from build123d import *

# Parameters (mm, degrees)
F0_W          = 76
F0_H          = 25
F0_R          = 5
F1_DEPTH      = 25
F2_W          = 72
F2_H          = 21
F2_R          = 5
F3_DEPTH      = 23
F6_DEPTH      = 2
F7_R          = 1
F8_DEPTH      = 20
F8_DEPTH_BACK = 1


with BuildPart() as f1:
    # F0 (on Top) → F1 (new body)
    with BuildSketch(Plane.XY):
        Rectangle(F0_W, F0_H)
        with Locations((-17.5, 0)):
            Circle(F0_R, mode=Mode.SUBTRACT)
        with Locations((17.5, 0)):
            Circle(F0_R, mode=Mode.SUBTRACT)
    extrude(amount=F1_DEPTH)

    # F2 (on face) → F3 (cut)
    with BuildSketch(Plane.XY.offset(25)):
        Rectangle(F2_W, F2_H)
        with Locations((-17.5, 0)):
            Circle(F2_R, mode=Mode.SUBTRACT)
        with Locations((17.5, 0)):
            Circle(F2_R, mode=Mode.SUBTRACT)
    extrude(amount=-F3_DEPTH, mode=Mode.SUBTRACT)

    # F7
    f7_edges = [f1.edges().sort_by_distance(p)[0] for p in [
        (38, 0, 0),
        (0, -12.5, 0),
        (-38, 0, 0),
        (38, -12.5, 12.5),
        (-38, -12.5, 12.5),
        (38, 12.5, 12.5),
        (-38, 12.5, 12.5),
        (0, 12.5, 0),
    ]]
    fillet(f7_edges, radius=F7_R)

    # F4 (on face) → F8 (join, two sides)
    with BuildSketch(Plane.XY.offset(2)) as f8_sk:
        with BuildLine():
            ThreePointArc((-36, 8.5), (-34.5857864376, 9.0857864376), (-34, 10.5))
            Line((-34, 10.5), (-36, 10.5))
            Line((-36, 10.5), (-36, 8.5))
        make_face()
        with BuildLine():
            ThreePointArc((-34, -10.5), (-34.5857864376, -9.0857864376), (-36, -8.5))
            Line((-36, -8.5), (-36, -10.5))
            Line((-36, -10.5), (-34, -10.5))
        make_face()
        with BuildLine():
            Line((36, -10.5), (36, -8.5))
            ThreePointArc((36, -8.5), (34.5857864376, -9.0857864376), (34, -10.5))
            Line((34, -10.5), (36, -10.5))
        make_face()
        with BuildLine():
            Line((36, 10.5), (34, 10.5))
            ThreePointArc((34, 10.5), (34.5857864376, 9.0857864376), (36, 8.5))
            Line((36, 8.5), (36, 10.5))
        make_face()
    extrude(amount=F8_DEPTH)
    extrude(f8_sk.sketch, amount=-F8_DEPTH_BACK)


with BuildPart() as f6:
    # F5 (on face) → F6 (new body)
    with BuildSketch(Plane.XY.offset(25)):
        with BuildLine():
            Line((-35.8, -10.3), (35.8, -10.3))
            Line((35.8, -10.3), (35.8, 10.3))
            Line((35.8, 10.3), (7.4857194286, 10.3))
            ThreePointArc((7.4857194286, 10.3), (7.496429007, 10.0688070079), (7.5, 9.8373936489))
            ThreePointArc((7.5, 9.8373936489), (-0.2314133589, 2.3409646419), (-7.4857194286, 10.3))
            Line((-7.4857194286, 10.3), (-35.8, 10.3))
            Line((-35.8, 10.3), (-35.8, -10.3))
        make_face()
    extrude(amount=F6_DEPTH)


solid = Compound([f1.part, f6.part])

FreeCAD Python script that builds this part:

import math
import FreeCAD as App
import Part
import Sketcher

V = App.Vector


def edges_at(feature, points):
    """Names of the edges that pass closest to the given points."""
    edges = feature.Shape.Edges
    near = lambda p: min(range(len(edges)), key=lambda i: edges[i].distToShape(Part.Vertex(*p))[0])
    return sorted({f"Edge{near(p) + 1}" for p in points})

doc = App.newDocument("Part")
body = doc.addObject("PartDesign::Body", "Body")

sketch1 = body.newObject("Sketcher::SketchObject", "Sketch")
sketch1.AttachmentSupport = (doc.getObject("XY_Plane"), [""])
sketch1.MapMode = "FlatFace"
sketch1.addGeometry(Part.LineSegment(V(-38, 12, 0), V(-38, -12, 0)), False)
sketch1.addGeometry(Part.LineSegment(V(-38, -12, 0), V(38, -12, 0)), False)
sketch1.addGeometry(Part.LineSegment(V(38, -12, 0), V(38, 12, 0)), False)
sketch1.addGeometry(Part.LineSegment(V(38, 12, 0), V(-38, 12, 0)), False)
sketch1.addGeometry(Part.Circle(V(-18, 0, 0), V(0, 0, 1), 5), False)
sketch1.addGeometry(Part.Circle(V(18, 0, 0), V(0, 0, 1), 5), False)
sketch1.addConstraint(Sketcher.Constraint("Coincident", 0, 2, 1, 1))
sketch1.addConstraint(Sketcher.Constraint("Coincident", 1, 2, 2, 1))
sketch1.addConstraint(Sketcher.Constraint("Coincident", 2, 2, 3, 1))
sketch1.addConstraint(Sketcher.Constraint("Coincident", 3, 2, 0, 1))
sketch1.addConstraint(Sketcher.Constraint("Vertical", 0))
sketch1.addConstraint(Sketcher.Constraint("Horizontal", 1))
sketch1.addConstraint(Sketcher.Constraint("Vertical", 2))
sketch1.addConstraint(Sketcher.Constraint("Horizontal", 3))
sketch1.addConstraint(Sketcher.Constraint("Equal", 4, 5))
sketch1.addConstraint(Sketcher.Constraint("Symmetric", 4, 3, 5, 3, -1, 1))
sketch1.addConstraint(Sketcher.Constraint("Symmetric", 0, 2, 2, 2, -1, 1))
sketch1.addConstraint(Sketcher.Constraint("PointOnObject", 4, 3, -1))
sketch1.addConstraint(Sketcher.Constraint("Diameter", 4, 10.0))
sketch1.addConstraint(Sketcher.Constraint("DistanceX", 1, 1, 1, 2, 76.0))
sketch1.addConstraint(Sketcher.Constraint("DistanceY", 0, 2, 0, 1, 25.0))
sketch1.addConstraint(Sketcher.Constraint("DistanceX", 4, 3, 5, 3, 35.0))
pad1 = body.newObject("PartDesign::Pad", "Pad")
pad1.Profile = sketch1
pad1.Length = 25

sketch2 = body.newObject("Sketcher::SketchObject", "Sketch001")
sketch2.AttachmentSupport = (doc.getObject("XY_Plane"), [""])
sketch2.MapMode = "FlatFace"
sketch2.AttachmentOffset = App.Placement(V(0, 0, 25), App.Rotation())
sketch2.addGeometry(Part.LineSegment(V(-36, 10, 0), V(-36, -10, 0)), False)
sketch2.addGeometry(Part.LineSegment(V(-36, -10, 0), V(36, -10, 0)), False)
sketch2.addGeometry(Part.LineSegment(V(36, -10, 0), V(36, 10, 0)), False)
sketch2.addGeometry(Part.LineSegment(V(36, 10, 0), V(-36, 10, 0)), False)
sketch2.addGeometry(Part.Circle(V(-18, 0, 0), V(0, 0, 1), 5), False)
sketch2.addGeometry(Part.Circle(V(18, 0, 0), V(0, 0, 1), 5), False)
sketch2.addConstraint(Sketcher.Constraint("Coincident", 0, 2, 1, 1))
sketch2.addConstraint(Sketcher.Constraint("Coincident", 1, 2, 2, 1))
sketch2.addConstraint(Sketcher.Constraint("Coincident", 2, 2, 3, 1))
sketch2.addConstraint(Sketcher.Constraint("Coincident", 3, 2, 0, 1))
sketch2.addConstraint(Sketcher.Constraint("Vertical", 0))
sketch2.addConstraint(Sketcher.Constraint("Horizontal", 1))
sketch2.addConstraint(Sketcher.Constraint("Vertical", 2))
sketch2.addConstraint(Sketcher.Constraint("Horizontal", 3))
sketch2.addConstraint(Sketcher.Constraint("Equal", 4, 5))
sketch2.addConstraint(Sketcher.Constraint("Symmetric", 4, 3, 5, 3, -1, 1))
sketch2.addConstraint(Sketcher.Constraint("Symmetric", 0, 2, 2, 2, -1, 1))
sketch2.addConstraint(Sketcher.Constraint("PointOnObject", 4, 3, -1))
sketch2.addConstraint(Sketcher.Constraint("Diameter", 4, 10.0))
sketch2.addConstraint(Sketcher.Constraint("DistanceX", 1, 1, 1, 2, 72.0))
sketch2.addConstraint(Sketcher.Constraint("DistanceY", 0, 2, 0, 1, 21.0))
sketch2.addConstraint(Sketcher.Constraint("DistanceX", 4, 3, 5, 3, 35.0))
pocket1 = body.newObject("PartDesign::Pocket", "Pocket")
pocket1.Profile = sketch2
pocket1.Length = 23
doc.recompute()

fillet = body.newObject("PartDesign::Fillet", "Fillet")
fillet.Base = (pocket1, edges_at(pocket1, [
    (38, 0, 0),
    (0, -12.5, 0),
    (-38, 0, 0),
    (38, -12.5, 12.5),
    (-38, -12.5, 12.5),
    (38, 12.5, 12.5),
    (-38, 12.5, 12.5),
    (0, 12.5, 0),
]))
fillet.Radius = 1

sketch3 = body.newObject("Sketcher::SketchObject", "Sketch002")
sketch3.AttachmentSupport = (doc.getObject("XY_Plane"), [""])
sketch3.MapMode = "FlatFace"
sketch3.AttachmentOffset = App.Placement(V(0, 0, 2), App.Rotation())
sketch3.addGeometry(Part.ArcOfCircle(Part.Circle(V(-36, 10.5, 0), V(0, 0, 1), 2), math.radians(-90), math.radians(0)), False)
sketch3.addGeometry(Part.LineSegment(V(-34, 10.5, 0), V(-36, 10.5, 0)), False)
sketch3.addGeometry(Part.LineSegment(V(-36, 10.5, 0), V(-36, 8.5, 0)), False)
sketch3.addGeometry(Part.ArcOfCircle(Part.Circle(V(-36, -10.5, 0), V(0, 0, 1), 2), math.radians(0), math.radians(90)), False)
sketch3.addGeometry(Part.LineSegment(V(-36, -8.5, 0), V(-36, -10.5, 0)), False)
sketch3.addGeometry(Part.LineSegment(V(-36, -10.5, 0), V(-34, -10.5, 0)), False)
sketch3.addGeometry(Part.LineSegment(V(36, -10.5, 0), V(36, -8.5, 0)), False)
sketch3.addGeometry(Part.ArcOfCircle(Part.Circle(V(36, -10.5, 0), V(0, 0, 1), 2), math.radians(90), math.radians(180)), False)
sketch3.addGeometry(Part.LineSegment(V(34, -10.5, 0), V(36, -10.5, 0)), False)
sketch3.addGeometry(Part.LineSegment(V(36, 10.5, 0), V(34, 10.5, 0)), False)
sketch3.addGeometry(Part.ArcOfCircle(Part.Circle(V(36, 10.5, 0), V(0, 0, 1), 2), math.radians(180), math.radians(270)), False)
sketch3.addGeometry(Part.LineSegment(V(36, 8.5, 0), V(36, 10.5, 0)), False)
sketch3.addConstraint(Sketcher.Constraint("Coincident", 0, 2, 1, 1))
sketch3.addConstraint(Sketcher.Constraint("Coincident", 1, 2, 2, 1))
sketch3.addConstraint(Sketcher.Constraint("Coincident", 2, 2, 0, 1))
sketch3.addConstraint(Sketcher.Constraint("Coincident", 3, 2, 4, 1))
sketch3.addConstraint(Sketcher.Constraint("Coincident", 4, 2, 5, 1))
sketch3.addConstraint(Sketcher.Constraint("Coincident", 5, 2, 3, 1))
sketch3.addConstraint(Sketcher.Constraint("Coincident", 6, 2, 7, 1))
sketch3.addConstraint(Sketcher.Constraint("Coincident", 7, 2, 8, 1))
sketch3.addConstraint(Sketcher.Constraint("Coincident", 8, 2, 6, 1))
sketch3.addConstraint(Sketcher.Constraint("Coincident", 9, 2, 10, 1))
sketch3.addConstraint(Sketcher.Constraint("Coincident", 10, 2, 11, 1))
sketch3.addConstraint(Sketcher.Constraint("Coincident", 11, 2, 9, 1))
sketch3.addConstraint(Sketcher.Constraint("Horizontal", 1))
sketch3.addConstraint(Sketcher.Constraint("Vertical", 2))
sketch3.addConstraint(Sketcher.Constraint("Vertical", 4))
sketch3.addConstraint(Sketcher.Constraint("Horizontal", 5))
sketch3.addConstraint(Sketcher.Constraint("Vertical", 6))
sketch3.addConstraint(Sketcher.Constraint("Horizontal", 8))
sketch3.addConstraint(Sketcher.Constraint("Horizontal", 9))
sketch3.addConstraint(Sketcher.Constraint("Vertical", 11))
sketch3.addConstraint(Sketcher.Constraint("Coincident", 1, 2, 0, 3))
sketch3.addConstraint(Sketcher.Constraint("Coincident", 4, 2, 3, 3))
sketch3.addConstraint(Sketcher.Constraint("Coincident", 8, 2, 7, 3))
sketch3.addConstraint(Sketcher.Constraint("Coincident", 11, 2, 10, 3))
sketch3.addConstraint(Sketcher.Constraint("Equal", 0, 3))
sketch3.addConstraint(Sketcher.Constraint("Equal", 3, 7))
sketch3.addConstraint(Sketcher.Constraint("Equal", 7, 10))
sketch3.addConstraint(Sketcher.Constraint("Symmetric", 0, 3, 7, 3, -1, 1))
sketch3.addConstraint(Sketcher.Constraint("Symmetric", 3, 3, 10, 3, -1, 1))
sketch3.addConstraint(Sketcher.Constraint("Symmetric", 3, 3, 7, 3, -2))
sketch3.addConstraint(Sketcher.Constraint("Radius", 0, 2.0))
sketch3.addConstraint(Sketcher.Constraint("DistanceX", 0, 3, -1, 1, 36.0))
sketch3.addConstraint(Sketcher.Constraint("DistanceY", 3, 3, 0, 3, 21.0))
pad2 = body.newObject("PartDesign::Pad", "Pad001")
pad2.Profile = sketch3
pad2.Type = "TwoLengths"
pad2.Length = 20
pad2.Length2 = 1
body2 = doc.addObject("PartDesign::Body", "Body001")

sketch4 = body2.newObject("Sketcher::SketchObject", "Sketch003")
sketch4.AttachmentSupport = (doc.getObject("XY_Plane001"), [""])
sketch4.MapMode = "FlatFace"
sketch4.AttachmentOffset = App.Placement(V(0, 0, 25), App.Rotation())
sketch4.addGeometry(Part.LineSegment(V(-35.8, -10.3, 0), V(35.8, -10.3, 0)), False)
sketch4.addGeometry(Part.LineSegment(V(35.8, -10.3, 0), V(35.8, 10.3, 0)), False)
sketch4.addGeometry(Part.LineSegment(V(35.8, 10.3, 0), V(7.49, 10.3, 0)), False)
sketch4.addGeometry(Part.ArcOfCircle(Part.Circle(V(0, 9.84, 0), V(0, 0, 1), 7.5), math.radians(0), math.radians(3.54)), False)
sketch4.addGeometry(Part.ArcOfCircle(Part.Circle(V(0, 9.84, 0), V(0, 0, 1), 7.5), math.radians(176), math.radians(360)), False)
sketch4.addGeometry(Part.LineSegment(V(-7.49, 10.3, 0), V(-35.8, 10.3, 0)), False)
sketch4.addGeometry(Part.LineSegment(V(-35.8, 10.3, 0), V(-35.8, -10.3, 0)), False)
sketch4.addConstraint(Sketcher.Constraint("Coincident", 0, 2, 1, 1))
sketch4.addConstraint(Sketcher.Constraint("Coincident", 1, 2, 2, 1))
sketch4.addConstraint(Sketcher.Constraint("Coincident", 2, 2, 3, 2))
sketch4.addConstraint(Sketcher.Constraint("Tangent", 3, 1, 4, 2))
sketch4.addConstraint(Sketcher.Constraint("Coincident", 4, 1, 5, 1))
sketch4.addConstraint(Sketcher.Constraint("Coincident", 5, 2, 6, 1))
sketch4.addConstraint(Sketcher.Constraint("Coincident", 6, 2, 0, 1))
sketch4.addConstraint(Sketcher.Constraint("Horizontal", 0))
sketch4.addConstraint(Sketcher.Constraint("Vertical", 1))
sketch4.addConstraint(Sketcher.Constraint("Horizontal", 2))
sketch4.addConstraint(Sketcher.Constraint("Horizontal", 5))
sketch4.addConstraint(Sketcher.Constraint("Vertical", 6))
sketch4.addConstraint(Sketcher.Constraint("Equal", 3, 4))
sketch4.addConstraint(Sketcher.Constraint("Symmetric", 0, 2, 5, 2, -1, 1))
sketch4.addConstraint(Sketcher.Constraint("Symmetric", 2, 2, 4, 1, -2))
sketch4.addConstraint(Sketcher.Constraint("Horizontal", 4, 3, 3, 1))
sketch4.addConstraint(Sketcher.Constraint("Radius", 3, 7.5))
sketch4.addConstraint(Sketcher.Constraint("DistanceX", 0, 1, 0, 2, 71.6))
sketch4.addConstraint(Sketcher.Constraint("DistanceY", 1, 1, 1, 2, 20.6))
sketch4.addConstraint(Sketcher.Constraint("DistanceX", 2, 2, 2, 1, 28.314281))
pad3 = body2.newObject("PartDesign::Pad", "Pad002")
pad3.Profile = sketch4
pad3.Length = 2

doc.recompute()
